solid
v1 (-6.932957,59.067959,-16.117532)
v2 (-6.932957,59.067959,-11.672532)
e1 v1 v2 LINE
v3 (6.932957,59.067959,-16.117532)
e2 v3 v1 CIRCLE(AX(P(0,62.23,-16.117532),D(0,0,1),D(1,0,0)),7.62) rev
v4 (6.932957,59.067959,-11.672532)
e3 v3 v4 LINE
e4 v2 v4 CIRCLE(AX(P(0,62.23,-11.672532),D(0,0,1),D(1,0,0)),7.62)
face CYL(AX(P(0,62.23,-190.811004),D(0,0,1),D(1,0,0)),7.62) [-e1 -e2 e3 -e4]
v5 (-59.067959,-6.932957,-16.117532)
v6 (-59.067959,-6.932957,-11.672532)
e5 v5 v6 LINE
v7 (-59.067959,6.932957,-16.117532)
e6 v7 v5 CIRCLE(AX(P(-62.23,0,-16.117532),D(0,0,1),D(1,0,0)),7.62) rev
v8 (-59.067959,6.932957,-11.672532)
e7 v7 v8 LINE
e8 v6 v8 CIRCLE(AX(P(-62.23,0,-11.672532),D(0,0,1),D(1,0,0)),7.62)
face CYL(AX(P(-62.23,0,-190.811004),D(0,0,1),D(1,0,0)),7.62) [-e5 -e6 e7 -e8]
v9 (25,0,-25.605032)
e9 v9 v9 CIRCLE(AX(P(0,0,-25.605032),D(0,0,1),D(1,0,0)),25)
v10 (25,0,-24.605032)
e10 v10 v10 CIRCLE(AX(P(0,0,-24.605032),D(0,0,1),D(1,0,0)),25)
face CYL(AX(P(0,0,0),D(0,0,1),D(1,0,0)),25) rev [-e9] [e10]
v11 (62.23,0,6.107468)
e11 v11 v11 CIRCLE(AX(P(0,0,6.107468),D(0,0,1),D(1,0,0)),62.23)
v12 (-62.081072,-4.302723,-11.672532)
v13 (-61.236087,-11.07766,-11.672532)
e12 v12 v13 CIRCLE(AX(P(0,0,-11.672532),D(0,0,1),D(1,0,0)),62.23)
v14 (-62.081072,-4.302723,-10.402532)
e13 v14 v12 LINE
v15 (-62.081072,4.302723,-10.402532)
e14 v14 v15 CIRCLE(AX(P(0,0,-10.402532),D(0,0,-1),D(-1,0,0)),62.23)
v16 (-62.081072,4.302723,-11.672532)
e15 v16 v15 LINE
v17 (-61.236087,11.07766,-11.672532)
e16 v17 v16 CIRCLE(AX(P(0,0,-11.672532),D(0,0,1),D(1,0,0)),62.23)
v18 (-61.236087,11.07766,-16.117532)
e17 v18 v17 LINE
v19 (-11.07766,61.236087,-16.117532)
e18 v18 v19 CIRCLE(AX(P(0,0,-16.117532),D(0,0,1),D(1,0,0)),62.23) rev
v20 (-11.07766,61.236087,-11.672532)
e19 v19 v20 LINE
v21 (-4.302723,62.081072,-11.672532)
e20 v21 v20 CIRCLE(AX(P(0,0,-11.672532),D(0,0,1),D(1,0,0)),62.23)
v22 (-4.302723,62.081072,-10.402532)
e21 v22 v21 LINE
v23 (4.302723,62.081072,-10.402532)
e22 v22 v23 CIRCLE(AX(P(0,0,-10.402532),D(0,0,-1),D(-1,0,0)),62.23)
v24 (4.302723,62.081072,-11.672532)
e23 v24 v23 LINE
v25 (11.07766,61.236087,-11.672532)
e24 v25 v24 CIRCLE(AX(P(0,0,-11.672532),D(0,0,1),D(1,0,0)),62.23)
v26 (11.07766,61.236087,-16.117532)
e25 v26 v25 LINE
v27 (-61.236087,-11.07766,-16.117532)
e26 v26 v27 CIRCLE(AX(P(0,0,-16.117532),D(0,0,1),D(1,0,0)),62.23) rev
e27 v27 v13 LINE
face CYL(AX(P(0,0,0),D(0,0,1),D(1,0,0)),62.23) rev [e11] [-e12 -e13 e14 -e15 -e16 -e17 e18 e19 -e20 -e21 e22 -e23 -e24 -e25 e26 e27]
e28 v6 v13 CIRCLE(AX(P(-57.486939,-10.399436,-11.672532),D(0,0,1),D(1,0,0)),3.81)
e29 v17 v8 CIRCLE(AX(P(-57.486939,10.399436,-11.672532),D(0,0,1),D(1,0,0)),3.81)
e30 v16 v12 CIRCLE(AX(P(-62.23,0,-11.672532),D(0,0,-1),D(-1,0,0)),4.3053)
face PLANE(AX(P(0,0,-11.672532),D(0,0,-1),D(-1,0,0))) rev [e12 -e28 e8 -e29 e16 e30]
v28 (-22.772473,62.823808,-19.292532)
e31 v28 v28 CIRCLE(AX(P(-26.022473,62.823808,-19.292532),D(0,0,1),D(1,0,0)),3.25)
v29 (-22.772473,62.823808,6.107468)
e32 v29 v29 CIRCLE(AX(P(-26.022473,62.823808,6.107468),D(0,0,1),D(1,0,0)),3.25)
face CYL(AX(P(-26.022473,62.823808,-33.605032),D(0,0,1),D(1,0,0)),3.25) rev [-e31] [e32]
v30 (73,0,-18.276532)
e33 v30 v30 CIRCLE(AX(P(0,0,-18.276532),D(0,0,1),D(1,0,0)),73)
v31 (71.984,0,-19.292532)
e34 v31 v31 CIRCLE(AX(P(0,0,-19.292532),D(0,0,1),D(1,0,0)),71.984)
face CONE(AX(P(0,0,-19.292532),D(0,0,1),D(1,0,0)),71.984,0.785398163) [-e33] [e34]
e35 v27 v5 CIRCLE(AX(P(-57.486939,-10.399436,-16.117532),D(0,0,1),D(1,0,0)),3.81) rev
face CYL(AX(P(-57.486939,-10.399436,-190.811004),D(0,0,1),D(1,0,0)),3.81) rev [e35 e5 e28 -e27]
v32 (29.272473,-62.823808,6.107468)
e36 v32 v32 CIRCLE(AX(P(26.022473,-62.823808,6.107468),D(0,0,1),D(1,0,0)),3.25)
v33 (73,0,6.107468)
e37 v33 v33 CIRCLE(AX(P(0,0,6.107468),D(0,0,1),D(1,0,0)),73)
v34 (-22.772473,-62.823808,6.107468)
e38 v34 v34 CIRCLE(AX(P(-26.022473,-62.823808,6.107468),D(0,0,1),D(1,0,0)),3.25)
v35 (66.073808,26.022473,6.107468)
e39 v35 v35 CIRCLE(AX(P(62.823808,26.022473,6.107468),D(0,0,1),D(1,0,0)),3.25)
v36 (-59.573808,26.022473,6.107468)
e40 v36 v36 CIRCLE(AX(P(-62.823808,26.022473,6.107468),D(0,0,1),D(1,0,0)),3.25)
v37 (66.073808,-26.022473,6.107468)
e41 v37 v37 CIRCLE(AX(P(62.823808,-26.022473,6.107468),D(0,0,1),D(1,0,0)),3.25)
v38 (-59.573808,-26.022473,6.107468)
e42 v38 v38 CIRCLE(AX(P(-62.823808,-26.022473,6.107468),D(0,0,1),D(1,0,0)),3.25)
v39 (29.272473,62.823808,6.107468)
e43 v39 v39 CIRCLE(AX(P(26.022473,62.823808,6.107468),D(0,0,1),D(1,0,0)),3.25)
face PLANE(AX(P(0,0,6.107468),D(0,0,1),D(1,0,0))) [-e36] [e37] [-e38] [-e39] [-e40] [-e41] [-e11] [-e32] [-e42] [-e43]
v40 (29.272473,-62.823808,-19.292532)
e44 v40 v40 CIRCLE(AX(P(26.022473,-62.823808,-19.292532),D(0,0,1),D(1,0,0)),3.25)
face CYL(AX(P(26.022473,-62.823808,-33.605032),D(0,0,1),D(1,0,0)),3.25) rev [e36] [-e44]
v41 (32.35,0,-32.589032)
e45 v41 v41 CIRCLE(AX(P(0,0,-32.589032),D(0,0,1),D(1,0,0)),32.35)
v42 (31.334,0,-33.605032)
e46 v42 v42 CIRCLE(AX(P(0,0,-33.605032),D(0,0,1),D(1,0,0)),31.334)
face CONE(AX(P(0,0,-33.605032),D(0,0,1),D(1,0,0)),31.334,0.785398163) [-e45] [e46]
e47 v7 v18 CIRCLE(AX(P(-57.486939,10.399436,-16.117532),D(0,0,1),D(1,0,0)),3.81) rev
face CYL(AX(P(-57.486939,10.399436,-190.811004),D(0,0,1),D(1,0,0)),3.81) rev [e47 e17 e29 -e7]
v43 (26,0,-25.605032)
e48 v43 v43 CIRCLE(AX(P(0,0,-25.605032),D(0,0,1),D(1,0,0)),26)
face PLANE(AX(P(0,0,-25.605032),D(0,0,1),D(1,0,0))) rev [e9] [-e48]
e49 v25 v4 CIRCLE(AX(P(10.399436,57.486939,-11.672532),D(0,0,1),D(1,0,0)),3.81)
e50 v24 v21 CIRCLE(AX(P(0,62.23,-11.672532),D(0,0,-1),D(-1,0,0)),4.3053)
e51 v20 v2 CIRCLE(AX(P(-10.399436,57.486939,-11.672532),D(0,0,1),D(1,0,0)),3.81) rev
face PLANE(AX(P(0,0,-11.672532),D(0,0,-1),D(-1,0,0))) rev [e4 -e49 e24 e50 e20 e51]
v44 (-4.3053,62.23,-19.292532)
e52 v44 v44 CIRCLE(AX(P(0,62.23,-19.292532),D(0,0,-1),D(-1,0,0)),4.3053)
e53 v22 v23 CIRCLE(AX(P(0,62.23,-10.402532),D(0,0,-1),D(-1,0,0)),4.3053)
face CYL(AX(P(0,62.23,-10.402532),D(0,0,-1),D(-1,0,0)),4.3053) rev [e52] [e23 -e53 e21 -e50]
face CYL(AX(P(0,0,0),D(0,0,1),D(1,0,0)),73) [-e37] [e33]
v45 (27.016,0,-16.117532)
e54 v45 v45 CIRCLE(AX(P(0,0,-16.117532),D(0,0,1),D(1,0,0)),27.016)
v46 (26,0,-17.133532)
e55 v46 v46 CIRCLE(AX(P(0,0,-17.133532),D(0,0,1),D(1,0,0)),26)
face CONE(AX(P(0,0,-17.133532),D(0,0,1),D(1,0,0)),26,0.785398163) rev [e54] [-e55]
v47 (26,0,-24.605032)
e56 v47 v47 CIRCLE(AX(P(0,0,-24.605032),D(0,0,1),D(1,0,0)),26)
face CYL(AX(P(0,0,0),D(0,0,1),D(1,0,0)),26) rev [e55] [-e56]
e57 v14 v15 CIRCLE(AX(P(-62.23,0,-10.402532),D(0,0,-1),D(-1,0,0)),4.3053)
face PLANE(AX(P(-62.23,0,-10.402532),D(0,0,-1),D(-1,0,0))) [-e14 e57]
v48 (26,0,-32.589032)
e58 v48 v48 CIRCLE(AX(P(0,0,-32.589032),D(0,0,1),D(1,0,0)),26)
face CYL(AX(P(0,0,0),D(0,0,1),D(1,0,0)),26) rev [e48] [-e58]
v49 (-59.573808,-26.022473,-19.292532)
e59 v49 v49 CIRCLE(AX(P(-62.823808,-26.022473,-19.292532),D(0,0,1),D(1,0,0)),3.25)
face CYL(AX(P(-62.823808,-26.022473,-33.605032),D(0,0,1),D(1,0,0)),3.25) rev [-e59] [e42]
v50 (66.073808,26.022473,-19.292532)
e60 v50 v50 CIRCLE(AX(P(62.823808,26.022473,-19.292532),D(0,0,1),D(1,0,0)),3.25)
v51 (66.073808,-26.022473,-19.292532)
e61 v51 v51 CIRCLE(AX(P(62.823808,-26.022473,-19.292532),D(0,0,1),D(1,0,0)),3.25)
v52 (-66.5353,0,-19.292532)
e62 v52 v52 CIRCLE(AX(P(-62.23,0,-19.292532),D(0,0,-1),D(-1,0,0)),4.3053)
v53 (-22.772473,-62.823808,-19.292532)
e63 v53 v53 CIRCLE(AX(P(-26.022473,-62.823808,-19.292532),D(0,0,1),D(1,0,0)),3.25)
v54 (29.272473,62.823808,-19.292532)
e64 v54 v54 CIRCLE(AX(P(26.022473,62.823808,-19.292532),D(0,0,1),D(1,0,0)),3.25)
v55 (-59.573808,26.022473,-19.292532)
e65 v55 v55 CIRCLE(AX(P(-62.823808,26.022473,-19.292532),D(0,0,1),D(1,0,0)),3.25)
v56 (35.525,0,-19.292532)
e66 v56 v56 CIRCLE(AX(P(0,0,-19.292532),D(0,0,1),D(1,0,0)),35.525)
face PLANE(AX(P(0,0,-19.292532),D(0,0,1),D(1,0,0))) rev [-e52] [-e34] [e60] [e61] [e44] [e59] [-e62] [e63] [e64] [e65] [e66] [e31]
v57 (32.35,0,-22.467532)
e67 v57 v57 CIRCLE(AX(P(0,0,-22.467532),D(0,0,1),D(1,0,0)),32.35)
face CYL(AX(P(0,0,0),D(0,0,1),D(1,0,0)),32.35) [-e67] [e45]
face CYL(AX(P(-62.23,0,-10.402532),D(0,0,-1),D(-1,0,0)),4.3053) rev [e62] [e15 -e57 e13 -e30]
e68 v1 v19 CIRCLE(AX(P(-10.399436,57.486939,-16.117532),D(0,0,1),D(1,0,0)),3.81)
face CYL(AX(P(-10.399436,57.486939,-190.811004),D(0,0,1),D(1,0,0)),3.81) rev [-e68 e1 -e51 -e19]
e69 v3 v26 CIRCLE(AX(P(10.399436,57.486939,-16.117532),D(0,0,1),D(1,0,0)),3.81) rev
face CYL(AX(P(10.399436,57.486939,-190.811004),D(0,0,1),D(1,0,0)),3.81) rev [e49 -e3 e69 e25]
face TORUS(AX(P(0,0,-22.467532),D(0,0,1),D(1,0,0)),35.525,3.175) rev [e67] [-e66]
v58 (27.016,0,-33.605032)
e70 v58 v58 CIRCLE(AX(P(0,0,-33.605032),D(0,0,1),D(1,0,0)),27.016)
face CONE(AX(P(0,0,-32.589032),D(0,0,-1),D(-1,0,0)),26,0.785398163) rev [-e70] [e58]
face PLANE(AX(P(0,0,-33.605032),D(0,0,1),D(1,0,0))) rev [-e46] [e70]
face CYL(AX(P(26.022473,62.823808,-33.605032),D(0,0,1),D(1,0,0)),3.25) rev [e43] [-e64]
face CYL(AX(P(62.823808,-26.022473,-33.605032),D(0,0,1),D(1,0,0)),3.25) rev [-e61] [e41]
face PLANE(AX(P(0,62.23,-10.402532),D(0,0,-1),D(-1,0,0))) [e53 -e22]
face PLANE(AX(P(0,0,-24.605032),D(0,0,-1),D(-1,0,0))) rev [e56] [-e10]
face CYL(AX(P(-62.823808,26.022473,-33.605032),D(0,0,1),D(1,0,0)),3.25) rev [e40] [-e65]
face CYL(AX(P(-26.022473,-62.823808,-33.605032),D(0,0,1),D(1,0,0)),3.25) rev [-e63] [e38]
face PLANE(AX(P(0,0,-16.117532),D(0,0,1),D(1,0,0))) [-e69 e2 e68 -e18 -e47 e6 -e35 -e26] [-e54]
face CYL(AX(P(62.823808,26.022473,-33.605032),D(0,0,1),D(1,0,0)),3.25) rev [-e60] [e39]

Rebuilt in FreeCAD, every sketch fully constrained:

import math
import FreeCAD as App
import Part
import Sketcher
from FreeCAD import Vector
Q = App.Units.Quantity

doc = App.newDocument("Part")
body = doc.addObject("PartDesign::Body", "Body")

sketch1 = body.newObject("Sketcher::SketchObject", "Sketch")
sketch1.AttachmentSupport = (doc.getObject("YZ_Plane"), [""])
sketch1.MapMode = "FlatFace"
sketch1.addGeometry([
    Part.LineSegment(Vector(73, -18.3, 0), Vector(73, 6.1, 0)),
    Part.LineSegment(Vector(73, 6.1, 0), Vector(62.2, 6.1, 0)),
    Part.LineSegment(Vector(62.2, 6.1, 0), Vector(62.2, -11.7, 0)),
    Part.LineSegment(Vector(62.2, -11.7, 0), Vector(54.6, -11.7, 0)),
    Part.LineSegment(Vector(54.6, -11.7, 0), Vector(54.6, -16.1, 0)),
    Part.LineSegment(Vector(54.6, -16.1, 0), Vector(27, -16.1, 0)),
    Part.LineSegment(Vector(27, -16.1, 0), Vector(26, -17.1, 0)),
    Part.LineSegment(Vector(26, -17.1, 0), Vector(26, -24.6, 0)),
    Part.LineSegment(Vector(26, -24.6, 0), Vector(25, -24.6, 0)),
    Part.LineSegment(Vector(25, -24.6, 0), Vector(25, -25.6, 0)),
    Part.LineSegment(Vector(25, -25.6, 0), Vector(26, -25.6, 0)),
    Part.LineSegment(Vector(26, -25.6, 0), Vector(26, -32.6, 0)),
    Part.LineSegment(Vector(26, -32.6, 0), Vector(27, -33.6, 0)),
    Part.LineSegment(Vector(27, -33.6, 0), Vector(31.3, -33.6, 0)),
    Part.LineSegment(Vector(31.3, -33.6, 0), Vector(32.4, -32.6, 0)),
    Part.LineSegment(Vector(32.4, -32.6, 0), Vector(32.4, -22.5, 0)),
    Part.ArcOfCircle(Part.Circle(Vector(35.5, -22.5, 0), Vector(0, 0, 1), 3.2), math.radians(90), math.radians(180)),
    Part.LineSegment(Vector(35.5, -19.3, 0), Vector(72, -19.3, 0)),
    Part.LineSegment(Vector(72, -19.3, 0), Vector(73, -18.3, 0)),
], False)
sketch1.addConstraint([
    Sketcher.Constraint("Coincident", 0, 2, 1, 1),
    Sketcher.Constraint("Coincident", 1, 2, 2, 1),
    Sketcher.Constraint("Coincident", 2, 2, 3, 1),
    Sketcher.Constraint("Coincident", 3, 2, 4, 1),
    Sketcher.Constraint("Coincident", 4, 2, 5, 1),
    Sketcher.Constraint("Coincident", 5, 2, 6, 1),
    Sketcher.Constraint("Coincident", 6, 2, 7, 1),
    Sketcher.Constraint("Coincident", 7, 2, 8, 1),
    Sketcher.Constraint("Coincident", 8, 2, 9, 1),
    Sketcher.Constraint("Coincident", 9, 2, 10, 1),
    Sketcher.Constraint("Coincident", 10, 2, 11, 1),
    Sketcher.Constraint("Coincident", 11, 2, 12, 1),
    Sketcher.Constraint("Coincident", 12, 2, 13, 1),
    Sketcher.Constraint("Coincident", 13, 2, 14, 1),
    Sketcher.Constraint("Coincident", 14, 2, 15, 1),
    Sketcher.Constraint("Tangent", 15, 2, 16, 2),
    Sketcher.Constraint("Tangent", 16, 1, 17, 1),
    Sketcher.Constraint("Coincident", 17, 2, 18, 1),
    Sketcher.Constraint("Coincident", 18, 2, 0, 1),
    Sketcher.Constraint("Vertical", 0),
    Sketcher.Constraint("Horizontal", 1),
    Sketcher.Constraint("Vertical", 2),
    Sketcher.Constraint("Horizontal", 3),
    Sketcher.Constraint("Vertical", 4),
    Sketcher.Constraint("Horizontal", 5),
    Sketcher.Constraint("Vertical", 7),
    Sketcher.Constraint("Horizontal", 8),
    Sketcher.Constraint("Vertical", 9),
    Sketcher.Constraint("Horizontal", 10),
    Sketcher.Constraint("Vertical", 11),
    Sketcher.Constraint("Horizontal", 13),
    Sketcher.Constraint("Vertical", 15),
    Sketcher.Constraint("Horizontal", 17),
    Sketcher.Constraint("Perpendicular", 6, 12),
    Sketcher.Constraint("Perpendicular", 12, 14),
    Sketcher.Constraint("Parallel", 14, 18),
    Sketcher.Constraint("Horizontal", 11, 2, 14, 2),
    Sketcher.Constraint("Vertical", 7, 2, 10, 2),
    Sketcher.Constraint("Vertical", 5, 2, 12, 2),
    Sketcher.Constraint("Equal", 10, 9),
    Sketcher.Constraint("Equal", 6, 12),
    Sketcher.Constraint("Equal", 14, 18),
    Sketcher.Constraint("DistanceX", 3, 2, 3, 1, Q("0.3 in")),
    Sketcher.Constraint("DistanceY", 2, 2, 2, 1, Q("0.7 in")),
    Sketcher.Constraint("Radius", 16, Q("0.125 in")),
    Sketcher.Constraint("DistanceY", 17, 2, 0, 2, Q("1 in")),
    Sketcher.Constraint("DistanceX", 13, 1, 13, 2, Q("0.17 in")),
    Sketcher.Constraint("DistanceY", 0, 1, 0, 2, Q("0.96 in")),
    Sketcher.Constraint("DistanceY", 4, 2, 4, 1, Q("0.175 in")),
    Sketcher.Constraint("DistanceX", -1, 1, 1, 2, Q("2.45 in")),
    Sketcher.Constraint("DistanceX", 1, 2, 1, 1, 10.77),
    Sketcher.Constraint("DistanceX", 5, 2, 5, 1, 27.594),
    Sketcher.Constraint("DistanceX", 8, 2, 8, 1, 1.0),
    Sketcher.Constraint("DistanceY", 7, 2, 7, 1, 7.4715),
    Sketcher.Constraint("DistanceY", 11, 2, 11, 1, 6.984),
    Sketcher.Constraint("DistanceY", 16, 3, -1, 1, 22.467532),
])
revolution = body.newObject("PartDesign::Revolution", "Revolution")
revolution.Profile = sketch1
revolution.ReferenceAxis = (sketch1, ["V_Axis"])
revolution.Angle = 360

sketch2 = body.newObject("Sketcher::SketchObject", "Sketch001")
sketch2.AttachmentSupport = (doc.getObject("XY_Plane"), [""])
sketch2.MapMode = "FlatFace"
sketch2.addGeometry([
    Part.Circle(Vector(26, 62.8, 0), Vector(0, 0, 1), 3.2),
    Part.Circle(Vector(62.8, 26, 0), Vector(0, 0, 1), 3.2),
    Part.Circle(Vector(62.8, -26, 0), Vector(0, 0, 1), 3.2),
    Part.Circle(Vector(26, -62.8, 0), Vector(0, 0, 1), 3.2),
    Part.Circle(Vector(-26, -62.8, 0), Vector(0, 0, 1), 3.2),
    Part.Circle(Vector(-62.8, -26, 0), Vector(0, 0, 1), 3.2),
    Part.Circle(Vector(-62.8, 26, 0), Vector(0, 0, 1), 3.2),
    Part.Circle(Vector(-26, 62.8, 0), Vector(0, 0, 1), 3.2),
], False)
sketch2.addConstraint([
    Sketcher.Constraint("Equal", 0, 1),
    Sketcher.Constraint("Equal", 1, 2),
    Sketcher.Constraint("Equal", 2, 3),
    Sketcher.Constraint("Equal", 3, 4),
    Sketcher.Constraint("Equal", 4, 5),
    Sketcher.Constraint("Equal", 5, 6),
    Sketcher.Constraint("Equal", 6, 7),
    Sketcher.Constraint("Symmetric", 0, 3, 4, 3, -1, 1),
    Sketcher.Constraint("Symmetric", 1, 3, 5, 3, -1, 1),
    Sketcher.Constraint("Symmetric", 2, 3, 6, 3, -1, 1),
    Sketcher.Constraint("Symmetric", 3, 3, 7, 3, -1, 1),
    Sketcher.Constraint("Symmetric", 3, 3, 4, 3, -2),
    Sketcher.Constraint("Symmetric", 2, 3, 5, 3, -2),
    Sketcher.Constraint("Diameter", 0, 6.5),
    Sketcher.Constraint("DistanceY", -1, 1, 0, 3, 62.823808),
    Sketcher.Constraint("DistanceX", -1, 1, 1, 3, 62.823808),
    Sketcher.Constraint("DistanceY", 2, 3, 0, 3, 88.846282),
    Sketcher.Constraint("DistanceX", 4, 3, 2, 3, 88.846282),
])
pocket1 = body.newObject("PartDesign::Pocket", "Pocket")
pocket1.Profile = sketch2
pocket1.Type = "ThroughAll"
pocket1.Midplane = True

sketch3 = body.newObject("Sketcher::SketchObject", "Sketch002")
sketch3.AttachmentSupport = (doc.getObject("XY_Plane"), [""])
sketch3.MapMode = "FlatFace"
sketch3.AttachmentOffset = App.Placement(Vector(0, 0, -19.292532), App.Rotation())
sketch3.addGeometry([
    Part.Circle(Vector(0, 62.2, 0), Vector(0, 0, 1), 4.3),
    Part.Circle(Vector(-62.2, 0, 0), Vector(0, 0, 1), 4.3),
], False)
sketch3.addConstraint([
    Sketcher.Constraint("Equal", 0, 1),
    Sketcher.Constraint("PointOnObject", 0, 3, -2),
    Sketcher.Constraint("PointOnObject", 1, 3, -1),
    Sketcher.Constraint("Diameter", 0, Q("0.339 in")),
    Sketcher.Constraint("DistanceY", -1, 1, 0, 3, Q("2.45 in")),
    Sketcher.Constraint("DistanceX", 1, 3, -1, 1, Q("2.45 in")),
])
pocket2 = body.newObject("PartDesign::Pocket", "Pocket001")
pocket2.Profile = sketch3
pocket2.Length = Q("0.35 in")
pocket2.Reversed = True

sketch4 = body.newObject("Sketcher::SketchObject", "Sketch003")
sketch4.AttachmentSupport = (doc.getObject("XY_Plane"), [""])
sketch4.MapMode = "FlatFace"
sketch4.AttachmentOffset = App.Placement(Vector(0, 0, -11.672532), App.Rotation())
sketch4.addGeometry([
    Part.ArcOfCircle(Part.Circle(Vector(-10.4, 57.5, 0), Vector(0, 0, 1), 3.8), math.radians(25), math.radians(100)),
    Part.ArcOfCircle(Part.Circle(Vector(0, 0, 0), Vector(0, 0, 1), 62.2), math.radians(100), math.radians(170)),
    Part.ArcOfCircle(Part.Circle(Vector(-57.5, 10.4, 0), Vector(0, 0, 1), 3.8), math.radians(170), math.radians(245)),
    Part.ArcOfCircle(Part.Circle(Vector(-62.2, 0, 0), Vector(0, 0, 1), 7.6), math.radians(0), math.radians(65)),
    Part.ArcOfCircle(Part.Circle(Vector(0, 0, 0), Vector(0, 0, 1), 54.6), math.radians(90), math.radians(180)),
    Part.ArcOfCircle(Part.Circle(Vector(0, 62.2, 0), Vector(0, 0, 1), 7.6), math.radians(-155), math.radians(-90)),
    Part.ArcOfCircle(Part.Circle(Vector(0, 62.2, 0), Vector(0, 0, 1), 7.6), math.radians(-90), math.radians(-25)),
    Part.ArcOfCircle(Part.Circle(Vector(0, 0, 0), Vector(0, 0, 1), 54.6), math.radians(-180), math.radians(90)),
    Part.ArcOfCircle(Part.Circle(Vector(-62.2, 0, 0), Vector(0, 0, 1), 7.6), math.radians(-65), math.radians(0)),
    Part.ArcOfCircle(Part.Circle(Vector(-57.5, -10.4, 0), Vector(0, 0, 1), 3.8), math.radians(115), math.radians(190)),
    Part.ArcOfCircle(Part.Circle(Vector(0, 0, 0), Vector(0, 0, 1), 62.2), math.radians(-170), math.radians(80)),
    Part.ArcOfCircle(Part.Circle(Vector(10.4, 57.5, 0), Vector(0, 0, 1), 3.8), math.radians(80), math.radians(155)),
], False)
sketch4.addConstraint([
    Sketcher.Constraint("Tangent", 0, 2, 1, 1),
    Sketcher.Constraint("Tangent", 1, 2, 2, 1),
    Sketcher.Constraint("Tangent", 2, 2, 3, 2),
    Sketcher.Constraint("Tangent", 3, 1, 4, 2),
    Sketcher.Constraint("Tangent", 4, 1, 5, 2),
    Sketcher.Constraint("Tangent", 5, 1, 0, 1),
    Sketcher.Constraint("Tangent", 6, 1, 7, 2),
    Sketcher.Constraint("Tangent", 7, 1, 8, 2),
    Sketcher.Constraint("Tangent", 8, 1, 9, 1),
    Sketcher.Constraint("Tangent", 9, 2, 10, 1),
    Sketcher.Constraint("Tangent", 10, 2, 11, 1),
    Sketcher.Constraint("Tangent", 11, 2, 6, 2),
    Sketcher.Constraint("Coincident", 1, 3, -1, 1),
    Sketcher.Constraint("Coincident", 4, 3, -1, 1),
    Sketcher.Constraint("Coincident", 7, 3, -1, 1),
    Sketcher.Constraint("Coincident", 10, 3, -1, 1),
    Sketcher.Constraint("Coincident", 6, 3, 5, 3),
    Sketcher.Constraint("Coincident", 8, 3, 3, 3),
    Sketcher.Constraint("Equal", 0, 2),
    Sketcher.Constraint("Equal", 3, 5),
    Sketcher.Constraint("Equal", 5, 6),
    Sketcher.Constraint("Equal", 2, 9),
    Sketcher.Constraint("Equal", 1, 10),
    Sketcher.Constraint("Equal", 9, 11),
    Sketcher.Constraint("PointOnObject", 3, 3, -1),
    Sketcher.Constraint("PointOnObject", 5, 3, -2),
    Sketcher.Constraint("Radius", 3, Q("0.3 in")),
    Sketcher.Constraint("Radius", 0, Q("0.15 in")),
    Sketcher.Constraint("Radius", 1, Q("2.45 in")),
    Sketcher.Constraint("Radius", 4, Q("2.15 in")),
])
pocket3 = body.newObject("PartDesign::Pocket", "Pocket002")
pocket3.Profile = sketch4
pocket3.Length = Q("0.175 in")

doc.recompute()
